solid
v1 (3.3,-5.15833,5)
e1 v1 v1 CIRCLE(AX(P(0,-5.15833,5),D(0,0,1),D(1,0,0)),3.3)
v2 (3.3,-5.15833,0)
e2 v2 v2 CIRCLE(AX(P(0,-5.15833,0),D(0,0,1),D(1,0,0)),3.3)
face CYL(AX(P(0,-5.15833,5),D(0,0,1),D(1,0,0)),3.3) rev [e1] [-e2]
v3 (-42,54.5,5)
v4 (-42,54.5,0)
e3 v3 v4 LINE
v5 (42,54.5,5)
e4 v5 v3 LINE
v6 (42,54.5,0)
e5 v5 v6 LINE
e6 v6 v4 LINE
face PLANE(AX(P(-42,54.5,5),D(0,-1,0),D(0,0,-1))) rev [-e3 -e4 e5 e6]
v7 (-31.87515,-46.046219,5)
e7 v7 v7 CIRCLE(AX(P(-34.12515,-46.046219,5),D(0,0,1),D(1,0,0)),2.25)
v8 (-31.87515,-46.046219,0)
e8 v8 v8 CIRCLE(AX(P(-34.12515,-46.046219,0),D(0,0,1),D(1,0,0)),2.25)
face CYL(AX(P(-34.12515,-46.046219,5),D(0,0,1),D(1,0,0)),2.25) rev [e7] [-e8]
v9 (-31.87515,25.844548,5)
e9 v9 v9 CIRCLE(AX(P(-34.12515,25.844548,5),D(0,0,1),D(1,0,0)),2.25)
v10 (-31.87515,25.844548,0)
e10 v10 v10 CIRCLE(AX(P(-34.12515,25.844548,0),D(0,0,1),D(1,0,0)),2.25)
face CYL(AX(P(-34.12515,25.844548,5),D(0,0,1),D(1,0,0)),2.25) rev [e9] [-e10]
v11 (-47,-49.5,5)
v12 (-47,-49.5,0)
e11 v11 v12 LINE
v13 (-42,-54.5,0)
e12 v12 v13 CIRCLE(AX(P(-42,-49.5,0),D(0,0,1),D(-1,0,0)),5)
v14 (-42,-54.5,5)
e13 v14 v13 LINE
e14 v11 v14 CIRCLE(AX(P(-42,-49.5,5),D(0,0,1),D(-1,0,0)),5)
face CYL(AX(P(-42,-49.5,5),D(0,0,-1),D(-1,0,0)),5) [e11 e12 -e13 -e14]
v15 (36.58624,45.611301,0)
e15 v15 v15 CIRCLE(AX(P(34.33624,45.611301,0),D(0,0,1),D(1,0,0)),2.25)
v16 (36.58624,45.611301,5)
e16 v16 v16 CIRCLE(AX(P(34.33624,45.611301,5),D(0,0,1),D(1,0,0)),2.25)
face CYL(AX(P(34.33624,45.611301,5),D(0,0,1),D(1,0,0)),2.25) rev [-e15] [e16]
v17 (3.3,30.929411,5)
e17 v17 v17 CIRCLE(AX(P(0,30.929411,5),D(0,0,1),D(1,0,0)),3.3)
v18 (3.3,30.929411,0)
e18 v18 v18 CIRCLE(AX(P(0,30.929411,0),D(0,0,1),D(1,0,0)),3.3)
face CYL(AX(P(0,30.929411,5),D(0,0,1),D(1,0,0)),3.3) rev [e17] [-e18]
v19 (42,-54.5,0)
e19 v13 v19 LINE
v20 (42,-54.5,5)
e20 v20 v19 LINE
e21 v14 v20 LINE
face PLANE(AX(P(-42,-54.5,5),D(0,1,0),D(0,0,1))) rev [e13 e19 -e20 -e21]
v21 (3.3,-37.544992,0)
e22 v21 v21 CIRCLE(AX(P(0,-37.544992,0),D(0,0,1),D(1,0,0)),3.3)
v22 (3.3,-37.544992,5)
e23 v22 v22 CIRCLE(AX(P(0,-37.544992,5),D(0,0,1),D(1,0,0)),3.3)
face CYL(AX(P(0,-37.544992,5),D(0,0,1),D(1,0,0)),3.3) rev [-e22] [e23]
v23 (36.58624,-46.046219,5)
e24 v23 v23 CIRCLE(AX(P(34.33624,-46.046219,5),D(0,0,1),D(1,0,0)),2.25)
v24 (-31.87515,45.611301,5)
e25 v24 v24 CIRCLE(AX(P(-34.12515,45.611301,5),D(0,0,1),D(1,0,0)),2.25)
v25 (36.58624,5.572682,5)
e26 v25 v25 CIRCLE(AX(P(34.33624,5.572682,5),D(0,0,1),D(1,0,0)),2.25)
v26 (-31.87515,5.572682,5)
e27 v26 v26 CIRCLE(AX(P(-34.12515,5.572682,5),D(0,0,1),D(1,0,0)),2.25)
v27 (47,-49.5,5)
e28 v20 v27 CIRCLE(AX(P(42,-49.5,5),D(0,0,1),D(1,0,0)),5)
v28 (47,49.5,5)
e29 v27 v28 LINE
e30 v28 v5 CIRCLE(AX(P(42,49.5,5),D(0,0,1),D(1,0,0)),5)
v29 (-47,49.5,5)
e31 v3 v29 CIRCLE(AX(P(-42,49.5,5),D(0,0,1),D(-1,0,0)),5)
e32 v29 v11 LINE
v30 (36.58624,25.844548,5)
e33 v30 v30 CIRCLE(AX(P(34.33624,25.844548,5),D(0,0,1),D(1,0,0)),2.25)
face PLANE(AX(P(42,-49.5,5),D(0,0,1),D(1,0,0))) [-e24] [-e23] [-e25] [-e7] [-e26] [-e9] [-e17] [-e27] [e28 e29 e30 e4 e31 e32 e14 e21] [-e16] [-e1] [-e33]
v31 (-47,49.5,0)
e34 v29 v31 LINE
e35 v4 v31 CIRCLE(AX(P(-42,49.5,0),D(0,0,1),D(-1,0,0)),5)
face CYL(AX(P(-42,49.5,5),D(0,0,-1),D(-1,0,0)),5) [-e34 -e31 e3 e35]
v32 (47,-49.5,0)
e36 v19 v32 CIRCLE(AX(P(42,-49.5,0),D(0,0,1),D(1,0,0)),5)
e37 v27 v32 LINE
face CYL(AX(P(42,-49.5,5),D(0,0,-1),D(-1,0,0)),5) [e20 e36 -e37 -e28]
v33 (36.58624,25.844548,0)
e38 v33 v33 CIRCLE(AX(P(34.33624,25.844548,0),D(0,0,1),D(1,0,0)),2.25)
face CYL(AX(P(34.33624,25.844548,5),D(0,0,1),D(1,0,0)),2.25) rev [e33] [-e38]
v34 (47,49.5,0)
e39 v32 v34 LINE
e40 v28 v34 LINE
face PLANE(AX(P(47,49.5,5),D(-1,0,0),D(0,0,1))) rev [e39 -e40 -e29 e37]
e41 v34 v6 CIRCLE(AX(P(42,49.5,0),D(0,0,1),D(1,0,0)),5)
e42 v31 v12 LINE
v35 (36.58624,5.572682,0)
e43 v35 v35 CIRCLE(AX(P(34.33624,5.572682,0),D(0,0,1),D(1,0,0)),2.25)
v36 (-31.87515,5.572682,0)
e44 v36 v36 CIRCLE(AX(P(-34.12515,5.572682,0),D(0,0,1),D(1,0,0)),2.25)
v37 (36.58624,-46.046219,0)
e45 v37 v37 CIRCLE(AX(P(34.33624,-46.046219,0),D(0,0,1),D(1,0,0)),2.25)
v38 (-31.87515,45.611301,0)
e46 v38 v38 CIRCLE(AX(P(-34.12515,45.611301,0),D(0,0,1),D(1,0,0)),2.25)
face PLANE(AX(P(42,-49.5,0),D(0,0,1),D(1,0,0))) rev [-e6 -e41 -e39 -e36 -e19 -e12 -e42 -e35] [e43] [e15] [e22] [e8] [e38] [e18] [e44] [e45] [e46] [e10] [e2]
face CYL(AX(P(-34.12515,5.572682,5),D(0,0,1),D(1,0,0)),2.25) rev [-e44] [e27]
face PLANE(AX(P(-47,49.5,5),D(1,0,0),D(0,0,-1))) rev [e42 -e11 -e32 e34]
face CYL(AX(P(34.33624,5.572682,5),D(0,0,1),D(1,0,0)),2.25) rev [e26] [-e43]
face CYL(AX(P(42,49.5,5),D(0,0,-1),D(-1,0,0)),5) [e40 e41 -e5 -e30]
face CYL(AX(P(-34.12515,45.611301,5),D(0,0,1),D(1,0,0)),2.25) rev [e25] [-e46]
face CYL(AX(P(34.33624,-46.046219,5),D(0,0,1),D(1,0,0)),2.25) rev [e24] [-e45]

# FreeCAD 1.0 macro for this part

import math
import FreeCAD as App
import Part
import Sketcher

V = App.Vector

doc = App.newDocument("Part")
body = doc.addObject("PartDesign::Body", "Body")

# Sketch on XY plane
sketch1 = body.newObject("Sketcher::SketchObject", "Sketch")
sketch1.AttachmentSupport = (doc.getObject("XY_Plane"), [""])
sketch1.MapMode = "FlatFace"
sketch1.addGeometry([
    Part.LineSegment(V(42, 54, 0), V(-42, 54, 0)),  # 0
    Part.ArcOfCircle(Part.Circle(V(-42, 50, 0), V(0, 0, 1), 5), math.radians(90), math.radians(180)),  # 1
    Part.LineSegment(V(-47, 50, 0), V(-47, -50, 0)),  # 2
    Part.ArcOfCircle(Part.Circle(V(-42, -50, 0), V(0, 0, 1), 5), math.radians(180), math.radians(270)),  # 3
    Part.LineSegment(V(-42, -54, 0), V(42, -54, 0)),  # 4
    Part.ArcOfCircle(Part.Circle(V(42, -50, 0), V(0, 0, 1), 5), math.radians(-90), math.radians(0)),  # 5
    Part.LineSegment(V(47, -50, 0), V(47, 50, 0)),  # 6
    Part.ArcOfCircle(Part.Circle(V(42, 50, 0), V(0, 0, 1), 5), math.radians(0), math.radians(90)),  # 7
], False)
sketch1.addConstraint([
    Sketcher.Constraint("Tangent", 0, 2, 1, 1),
    Sketcher.Constraint("Tangent", 1, 2, 2, 1),
    Sketcher.Constraint("Tangent", 2, 2, 3, 1),
    Sketcher.Constraint("Tangent", 3, 2, 4, 1),
    Sketcher.Constraint("Tangent", 4, 2, 5, 1),
    Sketcher.Constraint("Tangent", 5, 2, 6, 1),
    Sketcher.Constraint("Tangent", 6, 2, 7, 1),
    Sketcher.Constraint("Tangent", 7, 2, 0, 1),
    Sketcher.Constraint("Horizontal", 0),
    Sketcher.Constraint("Vertical", 2),
    Sketcher.Constraint("Horizontal", 4),
    Sketcher.Constraint("Vertical", 6),
    Sketcher.Constraint("Equal", 1, 3),
    Sketcher.Constraint("Equal", 3, 5),
    Sketcher.Constraint("Equal", 5, 7),
    Sketcher.Constraint("Symmetric", 1, 3, 5, 3, -1, 1),
    Sketcher.Constraint("Radius", 1, 5.0),
    Sketcher.Constraint("DistanceX", 0, 2, 0, 1, 84.0),
    Sketcher.Constraint("DistanceY", 2, 2, 2, 1, 99.0),
])
pad1 = body.newObject("PartDesign::Pad", "Pad")
pad1.Profile = sketch1
pad1.Length = 5

# Sketch on XY plane
sketch2 = body.newObject("Sketcher::SketchObject", "Sketch001")
sketch2.AttachmentSupport = (doc.getObject("XY_Plane"), [""])
sketch2.MapMode = "FlatFace"
sketch2.AttachmentOffset = App.Placement(V(0, 0, 5), App.Rotation())
sketch2.addGeometry([
    Part.Circle(V(0, 30.9, 0), V(0, 0, 1), 3.3),
    Part.Circle(V(0, -37.5, 0), V(0, 0, 1), 3.3),
    Part.Circle(V(0, -5.2, 0), V(0, 0, 1), 3.3),
], False)
sketch2.addConstraint([
    Sketcher.Constraint("Equal", 0, 1),
    Sketcher.Constraint("Equal", 1, 2),
    Sketcher.Constraint("PointOnObject", 0, 3, -2),
    Sketcher.Constraint("PointOnObject", 1, 3, -2),
    Sketcher.Constraint("PointOnObject", 2, 3, -2),
    Sketcher.Constraint("Diameter", 0, 6.6),
    Sketcher.Constraint("DistanceY", -1, 1, 0, 3, 30.929411),
    Sketcher.Constraint("DistanceY", 2, 3, -1, 1, 5.15833),
    Sketcher.Constraint("DistanceY", 1, 3, -1, 1, 37.544992),
])
doc.recompute()
hole = body.newObject("PartDesign::Hole", "Hole")
hole.Profile = sketch2
hole.ThreadType = "None"
hole.Diameter = 6.6
hole.DepthType = "ThroughAll"

# Sketch on XY plane
sketch3 = body.newObject("Sketcher::SketchObject", "Sketch002")
sketch3.AttachmentSupport = (doc.getObject("XY_Plane"), [""])
sketch3.MapMode = "FlatFace"
sketch3.AttachmentOffset = App.Placement(V(0, 0, 5), App.Rotation())
sketch3.addGeometry([
    Part.Circle(V(34.3, 45.6, 0), V(0, 0, 1), 2.2),  # 0
    Part.Circle(V(34.3, 25.8, 0), V(0, 0, 1), 2.2),  # 1
    Part.Circle(V(34.3, 5.6, 0), V(0, 0, 1), 2.2),  # 2
    Part.Circle(V(34.3, -46, 0), V(0, 0, 1), 2.2),  # 3
    Part.Circle(V(-34.1, -46, 0), V(0, 0, 1), 2.2),  # 4
    Part.Circle(V(-34.1, 5.6, 0), V(0, 0, 1), 2.2),  # 5
    Part.Circle(V(-34.1, 25.8, 0), V(0, 0, 1), 2.2),  # 6
    Part.Circle(V(-34.1, 45.6, 0), V(0, 0, 1), 2.2),  # 7
], False)
sketch3.addConstraint([
    Sketcher.Constraint("Equal", 0, 1),
    Sketcher.Constraint("Equal", 1, 2),
    Sketcher.Constraint("Equal", 2, 3),
    Sketcher.Constraint("Equal", 3, 4),
    Sketcher.Constraint("Equal", 4, 5),
    Sketcher.Constraint("Equal", 5, 6),
    Sketcher.Constraint("Equal", 6, 7),
    Sketcher.Constraint("Horizontal", 3, 3, 4, 3),
    Sketcher.Constraint("Horizontal", 2, 3, 5, 3),
    Sketcher.Constraint("Horizontal", 1, 3, 6, 3),
    Sketcher.Constraint("Horizontal", 0, 3, 7, 3),
    Sketcher.Constraint("Vertical", 0, 3, 1, 3),
    Sketcher.Constraint("Vertical", 1, 3, 2, 3),
    Sketcher.Constraint("Vertical", 2, 3, 3, 3),
    Sketcher.Constraint("Vertical", 4, 3, 5, 3),
    Sketcher.Constraint("Vertical", 5, 3, 6, 3),
    Sketcher.Constraint("Vertical", 6, 3, 7, 3),
    Sketcher.Constraint("Diameter", 0, 4.5),
    Sketcher.Constraint("DistanceY", -1, 1, 0, 3, 45.611301),
    Sketcher.Constraint("DistanceY", 3, 3, 2, 3, 51.618901),
    Sketcher.Constraint("DistanceX", -1, 1, 0, 3, 34.33624),
    Sketcher.Constraint("DistanceY", -1, 1, 1, 3, 25.844548),
    Sketcher.Constraint("DistanceY", -1, 1, 2, 3, 5.572682),
    Sketcher.Constraint("DistanceX", 4, 3, -1, 1, 34.12515),
])
doc.recompute()
hole2 = body.newObject("PartDesign::Hole", "Hole001")
hole2.Profile = sketch3
hole2.ThreadType = "None"
hole2.Diameter = 4.5
hole2.DepthType = "ThroughAll"

doc.recompute()
